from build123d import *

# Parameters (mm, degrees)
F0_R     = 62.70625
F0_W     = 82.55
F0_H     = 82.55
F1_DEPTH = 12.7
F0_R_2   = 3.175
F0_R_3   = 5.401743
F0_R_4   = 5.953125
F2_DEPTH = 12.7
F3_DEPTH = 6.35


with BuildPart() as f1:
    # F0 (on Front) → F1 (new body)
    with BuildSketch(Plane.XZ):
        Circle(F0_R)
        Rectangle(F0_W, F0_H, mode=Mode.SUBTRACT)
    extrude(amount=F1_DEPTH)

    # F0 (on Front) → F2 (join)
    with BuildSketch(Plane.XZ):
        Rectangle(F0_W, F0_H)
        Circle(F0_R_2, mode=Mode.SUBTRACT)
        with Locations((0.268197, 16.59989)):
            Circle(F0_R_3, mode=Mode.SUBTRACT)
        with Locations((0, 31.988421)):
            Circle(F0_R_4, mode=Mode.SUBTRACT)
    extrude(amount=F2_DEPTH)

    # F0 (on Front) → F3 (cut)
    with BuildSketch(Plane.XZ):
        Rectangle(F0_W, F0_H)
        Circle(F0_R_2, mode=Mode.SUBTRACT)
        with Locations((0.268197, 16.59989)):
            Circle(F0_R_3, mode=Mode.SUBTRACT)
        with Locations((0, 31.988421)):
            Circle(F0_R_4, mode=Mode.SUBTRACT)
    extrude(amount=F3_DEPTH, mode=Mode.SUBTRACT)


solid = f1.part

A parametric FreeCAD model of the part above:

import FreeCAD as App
import Part
import Sketcher
from FreeCAD import Vector
Q = App.Units.Quantity


def add_polygon(sketch, points):
    """Adds a closed chain of lines whose ends are joined by coincident constraints."""
    first, n = sketch.GeometryCount, len(points)
    for a, b in zip(points, points[1:] + points[:1]):
        sketch.addGeometry(Part.LineSegment(App.Vector(*a, 0), App.Vector(*b, 0)), False)
    for i in range(n):
        sketch.addConstraint(Sketcher.Constraint("Coincident", first + i, 2, first + (i + 1) % n, 1))

doc = App.newDocument("Part")
body = doc.addObject("PartDesign::Body", "Body")

# Sketch on XZ plane
sketch1 = body.newObject("Sketcher::SketchObject", "Sketch")
sketch1.AttachmentSupport = (doc.getObject("XZ_Plane"), [""])
sketch1.MapMode = "FlatFace"
sketch1.addGeometry(Part.Circle(Vector(0, 0, 0), Vector(0, 0, 1), 62.70625), False)  # 0
add_polygon(sketch1, [(41.275, -41.275), (-41.275, -41.275), (-41.275, 41.275), (41.275, 41.275)])  # lines 1-4
sketch1.addConstraint(Sketcher.Constraint("Horizontal", 1))
sketch1.addConstraint(Sketcher.Constraint("Vertical", 2))
sketch1.addConstraint(Sketcher.Constraint("Horizontal", 3))
sketch1.addConstraint(Sketcher.Constraint("Vertical", 4))
sketch1.addConstraint(Sketcher.Constraint("Coincident", 0, 3, -1, 1))
sketch1.addConstraint(Sketcher.Constraint("Symmetric", 1, 2, 3, 2, -1, 1))
sketch1.addConstraint(Sketcher.Constraint("Equal", 3, 2))
sketch1.addConstraint(Sketcher.Constraint("Diameter", 0, Q("4.9375 in")))
sketch1.addConstraint(Sketcher.Constraint("DistanceX", 1, 2, 1, 1, Q("3.25 in")))
pad1 = body.newObject("PartDesign::Pad", "Pad")
pad1.Profile = sketch1
pad1.Length = Q("0.5 in")

# Sketch on XZ plane
sketch2 = body.newObject("Sketcher::SketchObject", "Sketch001")
sketch2.AttachmentSupport = (doc.getObject("XZ_Plane"), [""])
sketch2.MapMode = "FlatFace"
add_polygon(sketch2, [(-41.275, 41.275), (-41.275, -41.275), (41.275, -41.275), (41.275, 41.275)])  # lines 0-3
sketch2.addGeometry(Part.Circle(Vector(0, 0, 0), Vector(0, 0, 1), 3.175), False)  # 4
sketch2.addGeometry(Part.Circle(Vector(0.268197, 16.59989, 0), Vector(0, 0, 1), 5.401743), False)  # 5
sketch2.addGeometry(Part.Circle(Vector(0, 31.988421, 0), Vector(0, 0, 1), 5.953125), False)  # 6
sketch2.addConstraint(Sketcher.Constraint("Vertical", 0))
sketch2.addConstraint(Sketcher.Constraint("Horizontal", 1))
sketch2.addConstraint(Sketcher.Constraint("Vertical", 2))
sketch2.addConstraint(Sketcher.Constraint("Horizontal", 3))
sketch2.addConstraint(Sketcher.Constraint("Coincident", 4, 3, -1, 1))
sketch2.addConstraint(Sketcher.Constraint("Symmetric", 0, 2, 2, 2, -1, 1))
sketch2.addConstraint(Sketcher.Constraint("PointOnObject", 6, 3, -2))
sketch2.addConstraint(Sketcher.Constraint("Equal", 3, 0))
sketch2.addConstraint(Sketcher.Constraint("Diameter", 4, Q("0.25 in")))
sketch2.addConstraint(Sketcher.Constraint("Diameter", 6, Q("0.46875 in")))
sketch2.addConstraint(Sketcher.Constraint("DistanceX", 1, 1, 1, 2, Q("3.25 in")))
sketch2.addConstraint(Sketcher.Constraint("Diameter", 5, 10.803486))
sketch2.addConstraint(Sketcher.Constraint("DistanceY", -1, 1, 5, 3, 16.59989))
sketch2.addConstraint(Sketcher.Constraint("DistanceY", -1, 1, 6, 3, 31.988421))
sketch2.addConstraint(Sketcher.Constraint("DistanceX", -1, 1, 5, 3, 0.268197))
pad2 = body.newObject("PartDesign::Pad", "Pad001")
pad2.Profile = sketch2
pad2.Length = Q("0.5 in")

# Sketch on XZ plane
sketch3 = body.newObject("Sketcher::SketchObject", "Sketch002")
sketch3.AttachmentSupport = (doc.getObject("XZ_Plane"), [""])
sketch3.MapMode = "FlatFace"
add_polygon(sketch3, [(-41.275, 41.275), (-41.275, -41.275), (41.275, -41.275), (41.275, 41.275)])  # lines 0-3
sketch3.addGeometry(Part.Circle(Vector(0, 0, 0), Vector(0, 0, 1), 3.175), False)  # 4
sketch3.addGeometry(Part.Circle(Vector(0.268197, 16.59989, 0), Vector(0, 0, 1), 5.401743), False)  # 5
sketch3.addGeometry(Part.Circle(Vector(0, 31.988421, 0), Vector(0, 0, 1), 5.953125), False)  # 6
sketch3.addConstraint(Sketcher.Constraint("Vertical", 0))
sketch3.addConstraint(Sketcher.Constraint("Horizontal", 1))
sketch3.addConstraint(Sketcher.Constraint("Vertical", 2))
sketch3.addConstraint(Sketcher.Constraint("Horizontal", 3))
sketch3.addConstraint(Sketcher.Constraint("Coincident", 4, 3, -1, 1))
sketch3.addConstraint(Sketcher.Constraint("Symmetric", 0, 2, 2, 2, -1, 1))
sketch3.addConstraint(Sketcher.Constraint("PointOnObject", 6, 3, -2))
sketch3.addConstraint(Sketcher.Constraint("Equal", 3, 0))
sketch3.addConstraint(Sketcher.Constraint("Diameter", 4, Q("0.25 in")))
sketch3.addConstraint(Sketcher.Constraint("Diameter", 6, Q("0.46875 in")))
sketch3.addConstraint(Sketcher.Constraint("DistanceX", 1, 1, 1, 2, Q("3.25 in")))
sketch3.addConstraint(Sketcher.Constraint("Diameter", 5, 10.803486))
sketch3.addConstraint(Sketcher.Constraint("DistanceY", -1, 1, 5, 3, 16.59989))
sketch3.addConstraint(Sketcher.Constraint("DistanceY", -1, 1, 6, 3, 31.988421))
sketch3.addConstraint(Sketcher.Constraint("DistanceX", -1, 1, 5, 3, 0.268197))
pocket1 = body.newObject("PartDesign::Pocket", "Pocket")
pocket1.Profile = sketch3
pocket1.Length = Q("0.25 in")
pocket1.Reversed = True

doc.recompute()
